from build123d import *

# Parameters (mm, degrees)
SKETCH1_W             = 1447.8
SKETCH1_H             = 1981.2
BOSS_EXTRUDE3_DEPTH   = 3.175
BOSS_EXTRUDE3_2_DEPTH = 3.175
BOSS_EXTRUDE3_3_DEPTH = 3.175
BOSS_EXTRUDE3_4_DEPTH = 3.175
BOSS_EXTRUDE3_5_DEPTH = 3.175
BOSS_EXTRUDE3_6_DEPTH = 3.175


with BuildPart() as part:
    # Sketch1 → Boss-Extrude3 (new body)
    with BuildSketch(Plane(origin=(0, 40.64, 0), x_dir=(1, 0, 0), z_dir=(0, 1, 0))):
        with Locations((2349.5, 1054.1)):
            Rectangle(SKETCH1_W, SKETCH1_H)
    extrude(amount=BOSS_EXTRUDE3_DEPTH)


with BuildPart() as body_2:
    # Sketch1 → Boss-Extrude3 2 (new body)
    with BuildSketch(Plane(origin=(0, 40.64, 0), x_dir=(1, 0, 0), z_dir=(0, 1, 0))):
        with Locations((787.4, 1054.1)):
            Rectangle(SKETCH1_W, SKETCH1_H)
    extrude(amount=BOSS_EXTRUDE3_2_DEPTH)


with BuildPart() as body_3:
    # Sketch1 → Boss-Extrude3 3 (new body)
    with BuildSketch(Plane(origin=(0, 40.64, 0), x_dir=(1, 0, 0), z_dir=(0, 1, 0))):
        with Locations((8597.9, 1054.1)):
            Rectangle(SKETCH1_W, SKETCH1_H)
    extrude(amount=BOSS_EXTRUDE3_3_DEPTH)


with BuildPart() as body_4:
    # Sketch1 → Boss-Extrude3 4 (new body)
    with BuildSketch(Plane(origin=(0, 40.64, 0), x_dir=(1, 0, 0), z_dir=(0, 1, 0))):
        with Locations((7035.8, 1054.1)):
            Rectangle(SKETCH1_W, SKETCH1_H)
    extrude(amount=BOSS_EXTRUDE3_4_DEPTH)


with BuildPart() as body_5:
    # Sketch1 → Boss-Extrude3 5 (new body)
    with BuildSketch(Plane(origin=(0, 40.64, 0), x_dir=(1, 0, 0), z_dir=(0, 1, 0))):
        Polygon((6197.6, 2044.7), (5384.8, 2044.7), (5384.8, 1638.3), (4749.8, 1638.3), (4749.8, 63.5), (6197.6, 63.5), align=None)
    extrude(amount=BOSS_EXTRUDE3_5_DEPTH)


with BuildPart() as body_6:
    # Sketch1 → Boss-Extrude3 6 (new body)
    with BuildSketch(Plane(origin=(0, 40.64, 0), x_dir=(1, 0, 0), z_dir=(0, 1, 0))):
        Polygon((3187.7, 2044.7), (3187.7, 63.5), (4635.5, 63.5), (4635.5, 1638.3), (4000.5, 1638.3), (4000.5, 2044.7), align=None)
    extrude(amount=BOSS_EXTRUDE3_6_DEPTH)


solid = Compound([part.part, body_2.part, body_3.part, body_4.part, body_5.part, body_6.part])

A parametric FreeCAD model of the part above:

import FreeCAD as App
import Part
import Sketcher
from FreeCAD import Vector
Q = App.Units.Quantity


def add_polygon(sketch, points):
    """Adds a closed chain of lines whose ends are joined by coincident constraints."""
    first, n = sketch.GeometryCount, len(points)
    for a, b in zip(points, points[1:] + points[:1]):
        sketch.addGeometry(Part.LineSegment(App.Vector(*a, 0), App.Vector(*b, 0)), False)
    for i in range(n):
        sketch.addConstraint(Sketcher.Constraint("Coincident", first + i, 2, first + (i + 1) % n, 1))

doc = App.newDocument("Part")
body = doc.addObject("PartDesign::Body", "Body")

# Sketch on XZ plane
sketch1 = body.newObject("Sketcher::SketchObject", "Sketch")
sketch1.AttachmentSupport = (doc.getObject("XZ_Plane"), [""])
sketch1.MapMode = "FlatFace"
sketch1.AttachmentOffset = App.Placement(Vector(0, 0, -1.6 * 25.4), App.Rotation())
add_polygon(sketch1, [(1626, -2045), (1626, -64), (3073, -64), (3073, -2045)])  # lines 0-3
sketch1.addConstraint([
    Sketcher.Constraint("Vertical", 0),
    Sketcher.Constraint("Horizontal", 1),
    Sketcher.Constraint("Vertical", 2),
    Sketcher.Constraint("Horizontal", 3),
    Sketcher.Constraint("DistanceX", 1, 1, 1, 2, Q("57 in")),
    Sketcher.Constraint("DistanceY", 0, 1, 0, 2, Q("78 in")),
    Sketcher.Constraint("DistanceX", -1, 1, 0, 2, Q("64 in")),
    Sketcher.Constraint("DistanceY", 0, 2, -1, 1, Q("2.5 in")),
])
pad1 = body.newObject("PartDesign::Pad", "Pad")
pad1.Profile = sketch1
pad1.Length = Q("0.125 in")
pad1.Reversed = True
body2 = doc.addObject("PartDesign::Body", "Body001")

# Sketch on XZ plane
sketch2 = body2.newObject("Sketcher::SketchObject", "Sketch001")
sketch2.AttachmentSupport = (doc.getObject("XZ_Plane001"), [""])
sketch2.MapMode = "FlatFace"
sketch2.AttachmentOffset = App.Placement(Vector(0, 0, -1.6 * 25.4), App.Rotation())
add_polygon(sketch2, [(64, -2045), (64, -64), (1511, -64), (1511, -2045)])  # lines 0-3
sketch2.addConstraint([
    Sketcher.Constraint("Vertical", 0),
    Sketcher.Constraint("Horizontal", 1),
    Sketcher.Constraint("Vertical", 2),
    Sketcher.Constraint("Horizontal", 3),
    Sketcher.Constraint("DistanceX", 1, 1, 1, 2, Q("57 in")),
    Sketcher.Constraint("DistanceY", 0, 1, 0, 2, Q("78 in")),
    Sketcher.Constraint("DistanceX", -1, 1, 0, 2, Q("2.5 in")),
    Sketcher.Constraint("DistanceY", 0, 2, -1, 1, Q("2.5 in")),
])
pad2 = body2.newObject("PartDesign::Pad", "Pad001")
pad2.Profile = sketch2
pad2.Length = Q("0.125 in")
pad2.Reversed = True
body3 = doc.addObject("PartDesign::Body", "Body002")

# Sketch on XZ plane
sketch3 = body3.newObject("Sketcher::SketchObject", "Sketch002")
sketch3.AttachmentSupport = (doc.getObject("XZ_Plane002"), [""])
sketch3.MapMode = "FlatFace"
sketch3.AttachmentOffset = App.Placement(Vector(0, 0, -1.6 * 25.4), App.Rotation())
add_polygon(sketch3, [(7874, -2045), (7874, -64), (9322, -64), (9322, -2045)])  # lines 0-3
sketch3.addConstraint([
    Sketcher.Constraint("Vertical", 0),
    Sketcher.Constraint("Horizontal", 1),
    Sketcher.Constraint("Vertical", 2),
    Sketcher.Constraint("Horizontal", 3),
    Sketcher.Constraint("DistanceX", 1, 1, 1, 2, Q("57 in")),
    Sketcher.Constraint("DistanceY", 0, 1, 0, 2, Q("78 in")),
    Sketcher.Constraint("DistanceX", -1, 1, 0, 2, Q("310 in")),
    Sketcher.Constraint("DistanceY", 0, 2, -1, 1, Q("2.5 in")),
])
pad3 = body3.newObject("PartDesign::Pad", "Pad002")
pad3.Profile = sketch3
pad3.Length = Q("0.125 in")
pad3.Reversed = True
body4 = doc.addObject("PartDesign::Body", "Body003")

# Sketch on XZ plane
sketch4 = body4.newObject("Sketcher::SketchObject", "Sketch003")
sketch4.AttachmentSupport = (doc.getObject("XZ_Plane003"), [""])
sketch4.MapMode = "FlatFace"
sketch4.AttachmentOffset = App.Placement(Vector(0, 0, -1.6 * 25.4), App.Rotation())
add_polygon(sketch4, [(6312, -2045), (6312, -64), (7760, -64), (7760, -2045)])  # lines 0-3
sketch4.addConstraint([
    Sketcher.Constraint("Vertical", 0),
    Sketcher.Constraint("Horizontal", 1),
    Sketcher.Constraint("Vertical", 2),
    Sketcher.Constraint("Horizontal", 3),
    Sketcher.Constraint("DistanceX", 1, 1, 1, 2, Q("57 in")),
    Sketcher.Constraint("DistanceY", 0, 1, 0, 2, Q("78 in")),
    Sketcher.Constraint("DistanceX", -1, 1, 0, 2, Q("248.5 in")),
    Sketcher.Constraint("DistanceY", 0, 2, -1, 1, Q("2.5 in")),
])
pad4 = body4.newObject("PartDesign::Pad", "Pad003")
pad4.Profile = sketch4
pad4.Length = Q("0.125 in")
pad4.Reversed = True
body5 = doc.addObject("PartDesign::Body", "Body004")

# Sketch on XZ plane
sketch5 = body5.newObject("Sketcher::SketchObject", "Sketch004")
sketch5.AttachmentSupport = (doc.getObject("XZ_Plane004"), [""])
sketch5.MapMode = "FlatFace"
sketch5.AttachmentOffset = App.Placement(Vector(0, 0, -1.6 * 25.4), App.Rotation())
add_polygon(sketch5, [(6198, -2045), (5385, -2045), (5385, -1638), (4750, -1638), (4750, -64), (6198, -64)])  # lines 0-5
sketch5.addConstraint([
    Sketcher.Constraint("Horizontal", 0),
    Sketcher.Constraint("Vertical", 1),
    Sketcher.Constraint("Horizontal", 2),
    Sketcher.Constraint("Vertical", 3),
    Sketcher.Constraint("Horizontal", 4),
    Sketcher.Constraint("Vertical", 5),
    Sketcher.Constraint("DistanceX", 0, 2, 0, 1, Q("32 in")),
    Sketcher.Constraint("DistanceX", 2, 2, 2, 1, Q("25 in")),
    Sketcher.Constraint("DistanceY", 1, 1, 1, 2, Q("16 in")),
    Sketcher.Constraint("DistanceY", 3, 1, 3, 2, Q("62 in")),
    Sketcher.Constraint("DistanceX", -1, 1, 0, 2, Q("212 in")),
    Sketcher.Constraint("DistanceY", 0, 2, -1, 1, Q("80.5 in")),
])
pad5 = body5.newObject("PartDesign::Pad", "Pad004")
pad5.Profile = sketch5
pad5.Length = Q("0.125 in")
pad5.Reversed = True
body6 = doc.addObject("PartDesign::Body", "Body005")

# Sketch on XZ plane
sketch6 = body6.newObject("Sketcher::SketchObject", "Sketch005")
sketch6.AttachmentSupport = (doc.getObject("XZ_Plane005"), [""])
sketch6.MapMode = "FlatFace"
sketch6.AttachmentOffset = App.Placement(Vector(0, 0, -1.6 * 25.4), App.Rotation())
add_polygon(sketch6, [(3188, -2045), (3188, -64), (4636, -64), (4636, -1638), (4000, -1638), (4000, -2045)])  # lines 0-5
sketch6.addConstraint([
    Sketcher.Constraint("Vertical", 0),
    Sketcher.Constraint("Horizontal", 1),
    Sketcher.Constraint("Vertical", 2),
    Sketcher.Constraint("Horizontal", 3),
    Sketcher.Constraint("Vertical", 4),
    Sketcher.Constraint("Horizontal", 5),
    Sketcher.Constraint("DistanceX", 1, 1, 1, 2, Q("57 in")),
    Sketcher.Constraint("DistanceX", 3, 2, 3, 1, Q("25 in")),
    Sketcher.Constraint("DistanceY", 0, 1, 0, 2, Q("78 in")),
    Sketcher.Constraint("DistanceY", 2, 2, 2, 1, Q("62 in")),
    Sketcher.Constraint("DistanceX", -1, 1, 0, 2, Q("125.5 in")),
    Sketcher.Constraint("DistanceY", 0, 2, -1, 1, Q("2.5 in")),
])
pad6 = body6.newObject("PartDesign::Pad", "Pad005")
pad6.Profile = sketch6
pad6.Length = Q("0.125 in")
pad6.Reversed = True

doc.recompute()
